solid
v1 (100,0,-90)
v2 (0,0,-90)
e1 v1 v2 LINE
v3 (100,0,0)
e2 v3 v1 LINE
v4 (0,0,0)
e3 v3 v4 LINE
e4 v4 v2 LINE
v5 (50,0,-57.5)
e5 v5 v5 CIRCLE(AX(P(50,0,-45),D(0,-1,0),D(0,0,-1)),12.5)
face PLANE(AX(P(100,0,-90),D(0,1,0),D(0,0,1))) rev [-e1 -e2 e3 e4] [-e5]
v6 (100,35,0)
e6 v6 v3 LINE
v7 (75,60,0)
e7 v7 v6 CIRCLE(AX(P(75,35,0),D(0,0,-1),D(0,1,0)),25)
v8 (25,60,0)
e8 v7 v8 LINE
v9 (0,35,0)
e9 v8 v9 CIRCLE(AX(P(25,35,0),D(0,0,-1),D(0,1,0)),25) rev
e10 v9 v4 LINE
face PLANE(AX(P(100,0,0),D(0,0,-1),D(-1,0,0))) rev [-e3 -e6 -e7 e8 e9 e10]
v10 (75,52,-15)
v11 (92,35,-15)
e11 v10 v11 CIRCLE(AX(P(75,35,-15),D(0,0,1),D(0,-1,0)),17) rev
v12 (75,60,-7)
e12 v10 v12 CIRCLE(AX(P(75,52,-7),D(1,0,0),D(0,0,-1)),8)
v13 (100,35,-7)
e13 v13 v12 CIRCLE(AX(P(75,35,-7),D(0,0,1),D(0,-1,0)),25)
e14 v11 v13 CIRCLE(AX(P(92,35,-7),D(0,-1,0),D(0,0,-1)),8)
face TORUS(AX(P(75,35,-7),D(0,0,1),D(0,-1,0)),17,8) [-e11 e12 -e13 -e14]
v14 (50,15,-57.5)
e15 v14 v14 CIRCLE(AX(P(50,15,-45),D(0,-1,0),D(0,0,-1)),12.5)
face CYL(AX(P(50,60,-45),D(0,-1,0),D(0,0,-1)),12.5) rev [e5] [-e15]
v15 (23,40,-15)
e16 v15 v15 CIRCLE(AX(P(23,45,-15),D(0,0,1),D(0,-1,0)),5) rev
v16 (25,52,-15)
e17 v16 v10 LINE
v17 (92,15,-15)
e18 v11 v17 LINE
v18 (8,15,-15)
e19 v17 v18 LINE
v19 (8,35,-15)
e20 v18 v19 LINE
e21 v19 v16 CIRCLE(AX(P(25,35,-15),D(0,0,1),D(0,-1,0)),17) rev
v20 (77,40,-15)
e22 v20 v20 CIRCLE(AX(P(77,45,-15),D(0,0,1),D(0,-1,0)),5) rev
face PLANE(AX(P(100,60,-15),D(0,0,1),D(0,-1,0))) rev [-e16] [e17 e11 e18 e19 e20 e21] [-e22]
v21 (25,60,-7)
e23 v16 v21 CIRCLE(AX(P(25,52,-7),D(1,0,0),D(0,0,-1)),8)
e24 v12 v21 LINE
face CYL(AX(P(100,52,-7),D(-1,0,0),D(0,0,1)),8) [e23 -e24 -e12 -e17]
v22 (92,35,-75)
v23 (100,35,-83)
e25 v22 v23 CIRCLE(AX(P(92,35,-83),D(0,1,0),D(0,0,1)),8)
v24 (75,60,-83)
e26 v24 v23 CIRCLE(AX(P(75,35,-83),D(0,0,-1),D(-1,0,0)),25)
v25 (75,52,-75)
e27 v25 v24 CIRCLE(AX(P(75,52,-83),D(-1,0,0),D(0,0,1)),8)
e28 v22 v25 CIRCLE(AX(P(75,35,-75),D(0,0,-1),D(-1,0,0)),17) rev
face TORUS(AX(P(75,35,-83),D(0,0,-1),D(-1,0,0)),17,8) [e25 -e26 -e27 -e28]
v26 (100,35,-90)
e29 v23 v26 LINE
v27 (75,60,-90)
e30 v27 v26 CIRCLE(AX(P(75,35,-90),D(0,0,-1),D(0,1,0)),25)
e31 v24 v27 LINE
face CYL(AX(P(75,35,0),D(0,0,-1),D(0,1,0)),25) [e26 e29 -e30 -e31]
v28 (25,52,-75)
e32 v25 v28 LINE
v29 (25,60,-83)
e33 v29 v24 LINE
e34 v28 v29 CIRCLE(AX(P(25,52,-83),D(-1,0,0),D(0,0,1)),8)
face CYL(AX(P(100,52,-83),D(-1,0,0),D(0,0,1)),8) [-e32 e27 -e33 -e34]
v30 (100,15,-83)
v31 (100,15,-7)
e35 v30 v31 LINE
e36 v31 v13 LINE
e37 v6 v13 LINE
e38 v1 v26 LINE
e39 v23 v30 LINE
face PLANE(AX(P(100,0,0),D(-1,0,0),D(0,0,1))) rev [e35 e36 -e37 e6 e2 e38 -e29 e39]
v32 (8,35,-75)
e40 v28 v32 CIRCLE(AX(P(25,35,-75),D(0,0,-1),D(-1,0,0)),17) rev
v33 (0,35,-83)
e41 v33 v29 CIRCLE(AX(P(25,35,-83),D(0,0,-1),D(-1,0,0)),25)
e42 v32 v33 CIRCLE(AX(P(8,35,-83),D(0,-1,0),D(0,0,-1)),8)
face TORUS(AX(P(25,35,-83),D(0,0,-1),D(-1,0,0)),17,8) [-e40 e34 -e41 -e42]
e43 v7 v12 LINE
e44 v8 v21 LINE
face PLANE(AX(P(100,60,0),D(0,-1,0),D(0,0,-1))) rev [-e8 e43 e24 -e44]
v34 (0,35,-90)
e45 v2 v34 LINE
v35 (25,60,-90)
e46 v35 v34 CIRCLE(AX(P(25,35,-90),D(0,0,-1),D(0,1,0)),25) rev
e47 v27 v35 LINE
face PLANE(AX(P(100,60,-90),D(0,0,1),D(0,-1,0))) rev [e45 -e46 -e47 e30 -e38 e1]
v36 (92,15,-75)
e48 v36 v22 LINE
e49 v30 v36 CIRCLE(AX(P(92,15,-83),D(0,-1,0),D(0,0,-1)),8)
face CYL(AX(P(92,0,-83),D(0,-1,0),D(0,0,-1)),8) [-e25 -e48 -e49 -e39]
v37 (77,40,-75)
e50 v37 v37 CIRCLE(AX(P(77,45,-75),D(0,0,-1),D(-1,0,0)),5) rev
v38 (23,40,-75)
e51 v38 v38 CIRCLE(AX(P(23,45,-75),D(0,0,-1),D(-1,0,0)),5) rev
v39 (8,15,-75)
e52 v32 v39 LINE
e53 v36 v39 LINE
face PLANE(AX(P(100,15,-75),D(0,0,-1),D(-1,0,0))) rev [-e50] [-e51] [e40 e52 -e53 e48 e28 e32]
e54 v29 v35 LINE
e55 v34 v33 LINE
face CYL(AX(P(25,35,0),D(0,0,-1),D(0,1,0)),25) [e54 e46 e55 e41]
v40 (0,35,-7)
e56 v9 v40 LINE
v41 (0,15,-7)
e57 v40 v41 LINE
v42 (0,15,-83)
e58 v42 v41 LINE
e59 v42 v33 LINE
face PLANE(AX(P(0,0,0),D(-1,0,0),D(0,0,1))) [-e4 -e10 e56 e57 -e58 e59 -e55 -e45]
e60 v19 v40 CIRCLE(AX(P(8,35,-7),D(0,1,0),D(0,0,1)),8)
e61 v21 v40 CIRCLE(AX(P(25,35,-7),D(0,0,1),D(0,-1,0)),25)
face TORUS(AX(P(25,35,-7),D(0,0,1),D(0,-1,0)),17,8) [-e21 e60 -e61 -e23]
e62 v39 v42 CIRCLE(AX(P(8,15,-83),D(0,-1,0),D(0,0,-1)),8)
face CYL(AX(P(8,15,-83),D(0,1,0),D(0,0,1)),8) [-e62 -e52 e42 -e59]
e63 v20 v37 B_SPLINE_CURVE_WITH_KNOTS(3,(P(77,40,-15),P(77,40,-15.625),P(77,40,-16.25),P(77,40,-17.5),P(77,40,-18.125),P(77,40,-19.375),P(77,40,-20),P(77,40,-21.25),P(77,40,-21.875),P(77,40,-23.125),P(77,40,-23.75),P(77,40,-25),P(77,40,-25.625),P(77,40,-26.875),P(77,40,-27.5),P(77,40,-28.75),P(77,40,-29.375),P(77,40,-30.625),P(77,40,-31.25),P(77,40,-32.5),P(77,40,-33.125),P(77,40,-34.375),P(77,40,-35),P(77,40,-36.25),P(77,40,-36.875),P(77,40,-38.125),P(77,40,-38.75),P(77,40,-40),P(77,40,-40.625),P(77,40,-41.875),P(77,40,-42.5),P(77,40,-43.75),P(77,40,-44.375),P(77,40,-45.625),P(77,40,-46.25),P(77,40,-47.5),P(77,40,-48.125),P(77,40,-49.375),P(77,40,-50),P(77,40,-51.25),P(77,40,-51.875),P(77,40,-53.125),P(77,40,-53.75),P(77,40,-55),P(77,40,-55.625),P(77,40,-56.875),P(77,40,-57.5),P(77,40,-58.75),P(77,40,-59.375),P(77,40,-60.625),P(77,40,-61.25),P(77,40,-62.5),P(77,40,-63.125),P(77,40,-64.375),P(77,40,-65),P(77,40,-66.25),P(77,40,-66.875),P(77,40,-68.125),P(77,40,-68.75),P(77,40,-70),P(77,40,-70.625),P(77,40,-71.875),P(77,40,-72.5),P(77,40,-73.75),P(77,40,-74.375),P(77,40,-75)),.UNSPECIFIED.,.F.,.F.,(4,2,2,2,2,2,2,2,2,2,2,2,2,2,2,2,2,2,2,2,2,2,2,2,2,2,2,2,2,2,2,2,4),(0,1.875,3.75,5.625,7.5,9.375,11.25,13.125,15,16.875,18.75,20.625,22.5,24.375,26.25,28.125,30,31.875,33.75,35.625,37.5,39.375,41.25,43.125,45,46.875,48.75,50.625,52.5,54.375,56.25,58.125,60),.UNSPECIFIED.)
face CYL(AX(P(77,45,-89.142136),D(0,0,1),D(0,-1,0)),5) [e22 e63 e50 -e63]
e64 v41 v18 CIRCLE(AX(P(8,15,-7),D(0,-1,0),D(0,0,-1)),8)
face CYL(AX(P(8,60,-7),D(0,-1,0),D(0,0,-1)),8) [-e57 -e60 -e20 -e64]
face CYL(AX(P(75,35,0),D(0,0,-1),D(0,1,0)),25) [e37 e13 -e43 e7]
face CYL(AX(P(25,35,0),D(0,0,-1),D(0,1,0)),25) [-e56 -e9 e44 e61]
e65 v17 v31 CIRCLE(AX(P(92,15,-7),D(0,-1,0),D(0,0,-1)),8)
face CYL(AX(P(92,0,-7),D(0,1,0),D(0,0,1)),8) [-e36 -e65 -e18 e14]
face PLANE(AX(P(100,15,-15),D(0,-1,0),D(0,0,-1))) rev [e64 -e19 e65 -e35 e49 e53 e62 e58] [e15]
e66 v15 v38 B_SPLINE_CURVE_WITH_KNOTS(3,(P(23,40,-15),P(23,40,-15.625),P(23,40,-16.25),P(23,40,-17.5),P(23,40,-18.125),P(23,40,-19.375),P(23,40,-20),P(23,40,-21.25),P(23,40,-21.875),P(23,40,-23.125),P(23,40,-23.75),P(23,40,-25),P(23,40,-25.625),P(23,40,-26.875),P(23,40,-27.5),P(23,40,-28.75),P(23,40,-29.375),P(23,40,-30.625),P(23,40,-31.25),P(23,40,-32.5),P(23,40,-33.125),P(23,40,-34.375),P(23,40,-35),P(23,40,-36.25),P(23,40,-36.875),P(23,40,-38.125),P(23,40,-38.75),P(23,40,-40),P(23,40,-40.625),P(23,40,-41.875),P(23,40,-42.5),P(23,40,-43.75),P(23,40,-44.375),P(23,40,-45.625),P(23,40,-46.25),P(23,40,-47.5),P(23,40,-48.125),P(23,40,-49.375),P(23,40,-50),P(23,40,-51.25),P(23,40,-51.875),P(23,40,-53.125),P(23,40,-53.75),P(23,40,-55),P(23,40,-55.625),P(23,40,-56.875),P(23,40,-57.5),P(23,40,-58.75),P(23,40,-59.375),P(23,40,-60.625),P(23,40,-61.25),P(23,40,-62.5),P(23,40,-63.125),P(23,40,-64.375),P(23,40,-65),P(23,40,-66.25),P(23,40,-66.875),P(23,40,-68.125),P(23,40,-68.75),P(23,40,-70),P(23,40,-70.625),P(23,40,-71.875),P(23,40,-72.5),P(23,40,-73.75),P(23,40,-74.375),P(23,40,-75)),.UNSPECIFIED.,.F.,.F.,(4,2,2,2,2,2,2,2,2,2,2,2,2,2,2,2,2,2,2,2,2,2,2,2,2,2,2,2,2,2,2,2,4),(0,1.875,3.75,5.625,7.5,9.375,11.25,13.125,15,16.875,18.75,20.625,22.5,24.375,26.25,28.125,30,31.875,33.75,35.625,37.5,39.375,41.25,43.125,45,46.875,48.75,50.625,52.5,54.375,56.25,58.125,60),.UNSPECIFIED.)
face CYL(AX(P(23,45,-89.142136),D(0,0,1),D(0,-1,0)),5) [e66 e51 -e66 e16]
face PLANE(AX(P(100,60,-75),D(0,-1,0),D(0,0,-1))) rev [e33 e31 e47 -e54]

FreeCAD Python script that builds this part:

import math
import FreeCAD as App
import Part
import Sketcher
from FreeCAD import Vector


def edges_at(feature, points):
    """Names of the edges that pass closest to the given points."""
    edges = feature.Shape.Edges
    near = lambda p: min(range(len(edges)), key=lambda i: edges[i].distToShape(Part.Vertex(*p))[0])
    return sorted({f"Edge{near(p) + 1}" for p in points})


def add_polygon(sketch, points):
    """Adds a closed chain of lines whose ends are joined by coincident constraints."""
    first, n = sketch.GeometryCount, len(points)
    for a, b in zip(points, points[1:] + points[:1]):
        sketch.addGeometry(Part.LineSegment(App.Vector(*a, 0), App.Vector(*b, 0)), False)
    for i in range(n):
        sketch.addConstraint(Sketcher.Constraint("Coincident", first + i, 2, first + (i + 1) % n, 1))

doc = App.newDocument("Part")
body = doc.addObject("PartDesign::Body", "Body")

sketch1 = body.newObject("Sketcher::SketchObject", "Sketch")
sketch1.AttachmentSupport = (doc.getObject("YZ_Plane"), [""])
sketch1.MapMode = "FlatFace"
add_polygon(sketch1, [(60, 0), (0, 0), (0, -90), (60, -90), (60, -75), (15, -75), (15, -15), (60, -15)])
sketch1.addConstraint(Sketcher.Constraint("Horizontal", 0))
sketch1.addConstraint(Sketcher.Constraint("Vertical", 1))
sketch1.addConstraint(Sketcher.Constraint("Horizontal", 2))
sketch1.addConstraint(Sketcher.Constraint("Vertical", 3))
sketch1.addConstraint(Sketcher.Constraint("Horizontal", 4))
sketch1.addConstraint(Sketcher.Constraint("Vertical", 5))
sketch1.addConstraint(Sketcher.Constraint("Horizontal", 6))
sketch1.addConstraint(Sketcher.Constraint("Vertical", 7))
sketch1.addConstraint(Sketcher.Constraint("Coincident", 0, 2, -1, 1))
sketch1.addConstraint(Sketcher.Constraint("Vertical", 3, 2, 6, 2))
sketch1.addConstraint(Sketcher.Constraint("Equal", 2, 5))
sketch1.addConstraint(Sketcher.Constraint("Equal", 3, 7))
sketch1.addConstraint(Sketcher.Constraint("DistanceX", 0, 2, 0, 1, 60.0))
sketch1.addConstraint(Sketcher.Constraint("DistanceX", 4, 2, 4, 1, 45.0))
sketch1.addConstraint(Sketcher.Constraint("DistanceY", 1, 2, 1, 1, 90.0))
pad1 = body.newObject("PartDesign::Pad", "Pad")
pad1.Profile = sketch1
pad1.Length = 100

sketch2 = body.newObject("Sketcher::SketchObject", "Sketch001")
sketch2.AttachmentSupport = (doc.getObject("XY_Plane"), [""])
sketch2.MapMode = "FlatFace"
sketch2.AttachmentOffset = App.Placement(Vector(0, 0, -15), App.Rotation())
sketch2.addGeometry(Part.Circle(Vector(77, 45, 0), Vector(0, 0, 1), 5), False)
sketch2.addGeometry(Part.Circle(Vector(23, 45, 0), Vector(0, 0, 1), 5), False)
sketch2.addConstraint(Sketcher.Constraint("Equal", 0, 1))
sketch2.addConstraint(Sketcher.Constraint("Horizontal", 0, 3, 1, 3))
sketch2.addConstraint(Sketcher.Constraint("Diameter", 0, 10.0))
sketch2.addConstraint(Sketcher.Constraint("DistanceX", -1, 1, 0, 3, 77.0))
sketch2.addConstraint(Sketcher.Constraint("DistanceY", -1, 1, 0, 3, 45.0))
sketch2.addConstraint(Sketcher.Constraint("DistanceX", -1, 1, 1, 3, 23.0))
pad2 = body.newObject("PartDesign::Pad", "Pad001")
pad2.Profile = sketch2
pad2.Length = 60
pad2.Reversed = True

sketch3 = body.newObject("Sketcher::SketchObject", "Sketch002")
sketch3.AttachmentSupport = (doc.getObject("XZ_Plane"), [""])
sketch3.MapMode = "FlatFace"
sketch3.addGeometry(Part.Circle(Vector(50, -45, 0), Vector(0, 0, 1), 12), False)
sketch3.addConstraint(Sketcher.Constraint("Diameter", 0, 25.0))
sketch3.addConstraint(Sketcher.Constraint("DistanceX", -1, 1, 0, 3, 50.0))
sketch3.addConstraint(Sketcher.Constraint("DistanceY", 0, 3, -1, 1, 45.0))
pocket1 = body.newObject("PartDesign::Pocket", "Pocket")
pocket1.Profile = sketch3
pocket1.Type = "ThroughAll"

sketch4 = body.newObject("Sketcher::SketchObject", "Sketch003")
sketch4.AttachmentSupport = (doc.getObject("XY_Plane"), [""])
sketch4.MapMode = "FlatFace"
sketch4.AttachmentOffset = App.Placement(Vector(0, 0, -90), App.Rotation())
sketch4.addGeometry(Part.ArcOfCircle(Part.Circle(Vector(75, 35, 0), Vector(0, 0, 1), 25), math.radians(0), math.radians(90)), False)
sketch4.addGeometry(Part.LineSegment(Vector(75, 60, 0), Vector(100, 60, 0)), False)
sketch4.addGeometry(Part.LineSegment(Vector(100, 60, 0), Vector(100, 35, 0)), False)
sketch4.addGeometry(Part.ArcOfCircle(Part.Circle(Vector(25, 35, 0), Vector(0, 0, 1), 25), math.radians(90), math.radians(180)), False)
sketch4.addGeometry(Part.LineSegment(Vector(0, 35, 0), Vector(0, 60, 0)), False)
sketch4.addGeometry(Part.LineSegment(Vector(0, 60, 0), Vector(25, 60, 0)), False)
sketch4.addConstraint(Sketcher.Constraint("Tangent", 0, 2, 1, 1))
sketch4.addConstraint(Sketcher.Constraint("Coincident", 1, 2, 2, 1))
sketch4.addConstraint(Sketcher.Constraint("Tangent", 2, 2, 0, 1))
sketch4.addConstraint(Sketcher.Constraint("Tangent", 3, 2, 4, 1))
sketch4.addConstraint(Sketcher.Constraint("Coincident", 4, 2, 5, 1))
sketch4.addConstraint(Sketcher.Constraint("Tangent", 5, 2, 3, 1))
sketch4.addConstraint(Sketcher.Constraint("Horizontal", 1))
sketch4.addConstraint(Sketcher.Constraint("Vertical", 2))
sketch4.addConstraint(Sketcher.Constraint("Vertical", 4))
sketch4.addConstraint(Sketcher.Constraint("Horizontal", 5))
sketch4.addConstraint(Sketcher.Constraint("Equal", 0, 3))
sketch4.addConstraint(Sketcher.Constraint("PointOnObject", 3, 2, -2))
sketch4.addConstraint(Sketcher.Constraint("Horizontal", 0, 3, 3, 3))
sketch4.addConstraint(Sketcher.Constraint("Radius", 0, 25.0))
sketch4.addConstraint(Sketcher.Constraint("DistanceX", -1, 1, 0, 3, 75.0))
sketch4.addConstraint(Sketcher.Constraint("DistanceY", -1, 1, 0, 3, 35.0))
pocket2 = body.newObject("PartDesign::Pocket", "Pocket001")
pocket2.Profile = sketch4
pocket2.Type = "ThroughAll"
pocket2.Reversed = True
doc.recompute()

fillet = body.newObject("PartDesign::Fillet", "Fillet")
fillet.Base = (pocket2, edges_at(pocket2, [
    (100, 25, -15),
    (0, 25, -75),
    (100, 25, -75),
    (50, 60, -15),
    (50, 60, -75),
    (92.678, 52.678, -75),
    (92.678, 52.678, -15),
    (7.322, 52.678, -75),
    (7.322, 52.678, -15),
    (0, 25, -15),
]))
fillet.Radius = 8

doc.recompute()
